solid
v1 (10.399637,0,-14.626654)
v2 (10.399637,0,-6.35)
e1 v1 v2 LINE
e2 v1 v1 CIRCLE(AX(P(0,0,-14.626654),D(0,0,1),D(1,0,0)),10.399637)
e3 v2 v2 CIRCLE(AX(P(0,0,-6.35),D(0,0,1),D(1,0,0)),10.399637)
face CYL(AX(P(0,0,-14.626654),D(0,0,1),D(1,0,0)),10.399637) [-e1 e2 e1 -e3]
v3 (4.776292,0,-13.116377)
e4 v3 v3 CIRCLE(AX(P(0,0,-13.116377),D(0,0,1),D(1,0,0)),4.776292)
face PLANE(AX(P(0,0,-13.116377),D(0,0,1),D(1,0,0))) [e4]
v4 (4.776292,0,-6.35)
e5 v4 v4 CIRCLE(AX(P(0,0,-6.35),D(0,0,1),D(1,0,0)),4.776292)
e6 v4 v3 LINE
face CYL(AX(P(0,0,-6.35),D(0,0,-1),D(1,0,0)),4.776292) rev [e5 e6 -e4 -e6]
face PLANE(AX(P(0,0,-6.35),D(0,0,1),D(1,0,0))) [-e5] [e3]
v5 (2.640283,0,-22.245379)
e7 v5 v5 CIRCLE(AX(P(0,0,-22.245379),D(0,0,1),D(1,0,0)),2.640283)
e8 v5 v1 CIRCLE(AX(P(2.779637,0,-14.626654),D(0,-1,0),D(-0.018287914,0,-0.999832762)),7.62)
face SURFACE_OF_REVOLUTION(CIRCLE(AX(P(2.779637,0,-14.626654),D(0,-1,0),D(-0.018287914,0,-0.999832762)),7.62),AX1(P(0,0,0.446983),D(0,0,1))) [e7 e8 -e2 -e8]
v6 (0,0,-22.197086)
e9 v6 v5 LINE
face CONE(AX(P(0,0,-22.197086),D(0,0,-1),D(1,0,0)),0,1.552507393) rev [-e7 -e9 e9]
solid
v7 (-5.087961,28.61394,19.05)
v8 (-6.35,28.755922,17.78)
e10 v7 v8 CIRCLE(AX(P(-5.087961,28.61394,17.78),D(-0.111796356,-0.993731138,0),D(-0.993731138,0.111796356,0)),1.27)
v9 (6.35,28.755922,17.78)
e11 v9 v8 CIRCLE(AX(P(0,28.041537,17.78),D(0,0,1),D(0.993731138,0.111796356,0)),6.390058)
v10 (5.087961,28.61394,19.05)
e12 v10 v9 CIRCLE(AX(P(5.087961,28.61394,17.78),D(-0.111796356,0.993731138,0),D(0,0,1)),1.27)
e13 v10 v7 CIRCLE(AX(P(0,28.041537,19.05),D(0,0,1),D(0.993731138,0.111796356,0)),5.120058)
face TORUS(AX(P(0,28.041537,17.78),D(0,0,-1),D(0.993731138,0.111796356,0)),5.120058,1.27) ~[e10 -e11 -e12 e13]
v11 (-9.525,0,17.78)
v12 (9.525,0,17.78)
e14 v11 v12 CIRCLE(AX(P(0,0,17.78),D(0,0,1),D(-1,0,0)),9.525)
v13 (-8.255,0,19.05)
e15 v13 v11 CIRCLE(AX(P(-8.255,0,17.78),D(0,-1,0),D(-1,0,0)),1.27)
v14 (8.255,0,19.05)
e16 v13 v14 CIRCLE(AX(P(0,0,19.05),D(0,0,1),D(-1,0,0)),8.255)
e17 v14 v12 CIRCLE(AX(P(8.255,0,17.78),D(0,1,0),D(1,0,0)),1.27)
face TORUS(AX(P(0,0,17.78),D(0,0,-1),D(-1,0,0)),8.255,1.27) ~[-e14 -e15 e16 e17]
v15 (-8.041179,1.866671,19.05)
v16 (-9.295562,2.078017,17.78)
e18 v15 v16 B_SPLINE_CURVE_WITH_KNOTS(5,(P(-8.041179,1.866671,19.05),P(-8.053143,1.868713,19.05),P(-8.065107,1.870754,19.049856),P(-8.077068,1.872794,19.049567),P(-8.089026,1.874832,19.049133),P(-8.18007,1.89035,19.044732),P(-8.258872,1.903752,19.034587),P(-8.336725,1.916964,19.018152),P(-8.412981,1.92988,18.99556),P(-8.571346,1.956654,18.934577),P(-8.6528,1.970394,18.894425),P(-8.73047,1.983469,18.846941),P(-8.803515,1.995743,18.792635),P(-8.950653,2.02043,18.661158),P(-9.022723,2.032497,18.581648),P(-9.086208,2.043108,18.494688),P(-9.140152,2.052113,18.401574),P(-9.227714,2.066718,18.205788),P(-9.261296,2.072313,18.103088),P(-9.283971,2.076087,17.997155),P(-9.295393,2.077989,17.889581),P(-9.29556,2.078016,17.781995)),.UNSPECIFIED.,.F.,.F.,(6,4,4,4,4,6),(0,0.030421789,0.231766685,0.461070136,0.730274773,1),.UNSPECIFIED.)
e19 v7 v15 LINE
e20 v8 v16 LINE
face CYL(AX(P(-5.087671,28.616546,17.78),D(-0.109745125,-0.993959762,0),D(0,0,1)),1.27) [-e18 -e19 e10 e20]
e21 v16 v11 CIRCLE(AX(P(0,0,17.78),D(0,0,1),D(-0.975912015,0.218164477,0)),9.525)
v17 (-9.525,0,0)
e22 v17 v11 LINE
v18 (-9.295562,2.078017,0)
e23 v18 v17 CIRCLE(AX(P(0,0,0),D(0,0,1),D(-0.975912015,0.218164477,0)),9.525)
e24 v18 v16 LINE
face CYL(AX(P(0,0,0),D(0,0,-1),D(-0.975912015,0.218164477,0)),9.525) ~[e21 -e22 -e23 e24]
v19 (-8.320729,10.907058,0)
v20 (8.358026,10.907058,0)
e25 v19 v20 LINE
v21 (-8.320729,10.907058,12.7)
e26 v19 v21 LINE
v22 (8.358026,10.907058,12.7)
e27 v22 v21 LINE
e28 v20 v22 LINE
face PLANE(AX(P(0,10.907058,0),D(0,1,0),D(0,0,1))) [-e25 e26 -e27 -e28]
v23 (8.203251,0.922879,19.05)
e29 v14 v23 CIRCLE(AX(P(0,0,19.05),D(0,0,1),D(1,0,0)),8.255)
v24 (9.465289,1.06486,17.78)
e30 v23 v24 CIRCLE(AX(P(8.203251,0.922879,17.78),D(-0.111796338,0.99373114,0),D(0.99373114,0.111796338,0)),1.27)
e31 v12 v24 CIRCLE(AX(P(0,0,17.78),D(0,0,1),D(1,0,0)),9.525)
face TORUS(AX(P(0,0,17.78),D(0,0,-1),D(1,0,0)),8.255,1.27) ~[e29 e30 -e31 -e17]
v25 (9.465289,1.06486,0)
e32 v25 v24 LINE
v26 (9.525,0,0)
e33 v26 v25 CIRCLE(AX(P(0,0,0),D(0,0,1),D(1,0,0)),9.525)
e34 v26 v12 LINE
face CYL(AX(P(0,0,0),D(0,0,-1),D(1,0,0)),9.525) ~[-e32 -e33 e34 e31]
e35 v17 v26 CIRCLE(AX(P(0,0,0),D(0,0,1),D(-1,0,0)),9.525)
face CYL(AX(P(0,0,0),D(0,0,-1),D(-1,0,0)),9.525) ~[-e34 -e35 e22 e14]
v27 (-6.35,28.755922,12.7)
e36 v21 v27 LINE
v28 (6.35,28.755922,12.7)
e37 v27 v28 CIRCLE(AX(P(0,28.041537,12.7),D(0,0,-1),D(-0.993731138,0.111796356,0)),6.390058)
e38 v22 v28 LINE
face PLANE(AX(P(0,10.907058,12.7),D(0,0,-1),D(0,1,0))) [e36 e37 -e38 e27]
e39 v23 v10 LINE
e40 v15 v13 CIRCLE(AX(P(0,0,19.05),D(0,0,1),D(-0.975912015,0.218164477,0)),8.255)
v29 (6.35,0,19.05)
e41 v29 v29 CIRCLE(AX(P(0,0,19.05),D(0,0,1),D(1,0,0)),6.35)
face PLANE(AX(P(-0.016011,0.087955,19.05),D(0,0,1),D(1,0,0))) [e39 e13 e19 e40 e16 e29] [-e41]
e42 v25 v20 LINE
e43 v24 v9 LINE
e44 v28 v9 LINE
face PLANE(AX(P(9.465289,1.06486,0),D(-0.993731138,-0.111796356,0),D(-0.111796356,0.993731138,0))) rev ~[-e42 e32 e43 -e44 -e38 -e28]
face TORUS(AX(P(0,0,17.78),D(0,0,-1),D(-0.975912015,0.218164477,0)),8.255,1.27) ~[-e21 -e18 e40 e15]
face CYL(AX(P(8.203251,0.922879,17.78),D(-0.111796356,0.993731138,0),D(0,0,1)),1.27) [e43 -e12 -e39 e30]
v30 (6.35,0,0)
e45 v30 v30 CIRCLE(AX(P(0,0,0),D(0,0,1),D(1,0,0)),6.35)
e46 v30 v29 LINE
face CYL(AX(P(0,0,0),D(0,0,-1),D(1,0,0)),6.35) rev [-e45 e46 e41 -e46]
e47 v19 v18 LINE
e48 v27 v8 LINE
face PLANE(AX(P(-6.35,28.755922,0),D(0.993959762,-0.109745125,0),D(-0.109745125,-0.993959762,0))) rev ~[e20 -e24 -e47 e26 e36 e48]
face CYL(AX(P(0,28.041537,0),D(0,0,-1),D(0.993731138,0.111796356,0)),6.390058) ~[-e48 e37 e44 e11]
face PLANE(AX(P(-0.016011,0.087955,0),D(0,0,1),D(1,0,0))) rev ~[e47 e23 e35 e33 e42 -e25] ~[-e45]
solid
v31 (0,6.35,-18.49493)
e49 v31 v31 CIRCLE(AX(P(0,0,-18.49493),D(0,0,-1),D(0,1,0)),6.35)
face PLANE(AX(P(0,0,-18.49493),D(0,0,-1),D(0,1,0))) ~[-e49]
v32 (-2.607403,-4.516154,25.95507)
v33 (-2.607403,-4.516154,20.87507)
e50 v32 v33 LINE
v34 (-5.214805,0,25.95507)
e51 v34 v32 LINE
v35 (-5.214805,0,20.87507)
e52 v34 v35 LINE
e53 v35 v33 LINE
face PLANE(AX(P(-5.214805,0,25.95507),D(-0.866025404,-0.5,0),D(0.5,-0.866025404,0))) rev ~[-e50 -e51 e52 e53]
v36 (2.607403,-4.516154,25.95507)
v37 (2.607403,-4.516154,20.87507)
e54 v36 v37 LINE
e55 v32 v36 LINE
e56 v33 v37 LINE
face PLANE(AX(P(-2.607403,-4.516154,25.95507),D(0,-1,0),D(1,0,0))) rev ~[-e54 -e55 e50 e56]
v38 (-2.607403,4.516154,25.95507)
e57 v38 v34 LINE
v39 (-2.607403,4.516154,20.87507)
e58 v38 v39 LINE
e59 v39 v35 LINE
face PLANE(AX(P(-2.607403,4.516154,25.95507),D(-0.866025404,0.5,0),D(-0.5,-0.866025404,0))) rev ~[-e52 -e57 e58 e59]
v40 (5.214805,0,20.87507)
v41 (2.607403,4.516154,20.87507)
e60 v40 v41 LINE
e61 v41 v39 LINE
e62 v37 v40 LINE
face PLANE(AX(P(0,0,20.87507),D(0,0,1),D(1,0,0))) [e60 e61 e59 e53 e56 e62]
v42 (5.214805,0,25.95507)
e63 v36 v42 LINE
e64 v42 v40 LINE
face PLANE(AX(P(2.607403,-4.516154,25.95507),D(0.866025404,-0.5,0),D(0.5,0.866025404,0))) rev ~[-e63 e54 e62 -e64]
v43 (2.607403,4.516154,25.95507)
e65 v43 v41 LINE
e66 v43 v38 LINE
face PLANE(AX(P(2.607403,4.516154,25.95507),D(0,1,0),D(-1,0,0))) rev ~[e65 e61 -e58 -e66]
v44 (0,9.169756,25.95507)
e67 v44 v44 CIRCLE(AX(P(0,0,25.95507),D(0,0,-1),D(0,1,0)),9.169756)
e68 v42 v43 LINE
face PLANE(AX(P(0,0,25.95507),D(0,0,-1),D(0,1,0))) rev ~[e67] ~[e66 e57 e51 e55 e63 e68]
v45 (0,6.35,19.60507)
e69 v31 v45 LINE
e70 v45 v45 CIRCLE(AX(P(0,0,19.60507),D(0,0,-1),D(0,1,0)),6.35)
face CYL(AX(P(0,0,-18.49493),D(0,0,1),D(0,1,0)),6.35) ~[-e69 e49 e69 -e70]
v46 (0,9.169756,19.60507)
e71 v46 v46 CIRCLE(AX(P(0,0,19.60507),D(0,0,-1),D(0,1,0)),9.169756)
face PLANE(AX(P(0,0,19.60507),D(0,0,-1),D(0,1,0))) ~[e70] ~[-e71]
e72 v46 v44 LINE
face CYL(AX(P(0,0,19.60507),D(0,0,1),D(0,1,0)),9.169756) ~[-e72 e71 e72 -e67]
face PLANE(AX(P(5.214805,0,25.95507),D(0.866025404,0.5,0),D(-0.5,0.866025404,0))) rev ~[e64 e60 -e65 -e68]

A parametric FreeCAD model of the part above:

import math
import FreeCAD as App
import Part
import Sketcher

V = App.Vector
Q = App.Units.Quantity


def edges_at(feature, points):
    """Names of the edges that pass closest to the given points."""
    edges = feature.Shape.Edges
    near = lambda p: min(range(len(edges)), key=lambda i: edges[i].distToShape(Part.Vertex(*p))[0])
    return sorted({f"Edge{near(p) + 1}" for p in points})

doc = App.newDocument("Part")
params = doc.addObject("Spreadsheet::Sheet", "Params")
for row, (alias, value) in enumerate([
    ("sketch1_diameter", "0.5 in"),
    ("sketch1_radius", "0.375 in"),
    ("pad1_length", "0.75 in"),
    ("sketch2_height", "0.5 in"),
    ("fillet_radius", "0.05 in"),
    ("sketch3_height", "1.5 in"),
    ("sketch3_width", "0.25 in"),
    ("revolution_angle", "360 deg"),
    ("pocket2_length", "0.2 in"),
    ("sketch5_radius", "0.3 in"),
    ("revolution2_angle", "360 deg"),
], start=1):
    params.set(f"A{row}", alias)
    params.set(f"B{row}", "=" + value)
    params.setAlias(f"B{row}", alias)

body = doc.addObject("PartDesign::Body", "Body")

# Sketch on XY plane
sketch1 = body.newObject("Sketcher::SketchObject", "Sketch")
sketch1.AttachmentSupport = (doc.getObject("XY_Plane"), [""])
sketch1.MapMode = "FlatFace"
sketch1.addGeometry([
    Part.ArcOfCircle(Part.Circle(V(0, 0, 0), V(0, 0, 1), 9.5), math.radians(167.4), math.radians(180)),  # 0
    Part.ArcOfCircle(Part.Circle(V(0, 0, 0), V(0, 0, 1), 9.5), math.radians(180), math.radians(360)),  # 1
    Part.ArcOfCircle(Part.Circle(V(0, 0, 0), V(0, 0, 1), 9.5), math.radians(0), math.radians(6.42)),  # 2
    Part.LineSegment(V(9.5, 1.1, 0), V(6.3, 28.8, 0)),  # 3
    Part.ArcOfCircle(Part.Circle(V(0, 28, 0), V(0, 0, 1), 6.4), math.radians(6), math.radians(174)),  # 4
    Part.LineSegment(V(-6.3, 28.8, 0), V(-9.3, 2.1, 0)),  # 5
    Part.Circle(V(0, 0, 0), V(0, 0, 1), 6.3),  # 6
], False)
sketch1.addConstraint([
    Sketcher.Constraint("Tangent", 0, 2, 1, 1),
    Sketcher.Constraint("Tangent", 1, 2, 2, 1),
    Sketcher.Constraint("Tangent", 2, 2, 3, 1),
    Sketcher.Constraint("Tangent", 3, 2, 4, 1),
    Sketcher.Constraint("Coincident", 4, 2, 5, 1),
    Sketcher.Constraint("Coincident", 5, 2, 0, 1),
    Sketcher.Constraint("Coincident", 0, 3, -1, 1),
    Sketcher.Constraint("Coincident", 6, 3, -1, 1),
    Sketcher.Constraint("Equal", 0, 1),
    Sketcher.Constraint("Equal", 1, 2),
    Sketcher.Constraint("Symmetric", 3, 2, 4, 2, -2),
    Sketcher.Constraint("PointOnObject", 0, 2, -1),
    Sketcher.Constraint("PointOnObject", 1, 2, -1),
    Sketcher.Constraint("Diameter", 6, Q("0.5 in")),
    Sketcher.Constraint("Radius", 0, Q("0.375 in")),
    Sketcher.Constraint("DistanceX", 4, 2, 3, 2, Q("0.5 in")),
    Sketcher.Constraint("Distance", 3, Q("27.865748 mm")),
    Sketcher.Constraint("DistanceX", 5, 2, -1, 1, Q("9.295562 mm")),
])
sketch1.setExpression("Constraints[13]", "Params.sketch1_diameter")
sketch1.setExpression("Constraints[14]", "Params.sketch1_radius")
pad1 = body.newObject("PartDesign::Pad", "Pad")
pad1.Profile = sketch1
pad1.setExpression("Length", "Params.pad1_length")

# Sketch on YZ plane
sketch2 = body.newObject("Sketcher::SketchObject", "Sketch001")
sketch2.AttachmentSupport = (doc.getObject("YZ_Plane"), [""])
sketch2.MapMode = "FlatFace"
sketch2.addGeometry([
    Part.LineSegment(V(11, 13, 0), V(11, 0, 0)),
    Part.LineSegment(V(11, 0, 0), V(44, 0, 0)),
    Part.LineSegment(V(44, 0, 0), V(44, 13, 0)),
    Part.LineSegment(V(44, 13, 0), V(11, 13, 0)),
], False)
sketch2.addConstraint([
    Sketcher.Constraint("Coincident", 0, 2, 1, 1),
    Sketcher.Constraint("Coincident", 1, 2, 2, 1),
    Sketcher.Constraint("Coincident", 2, 2, 3, 1),
    Sketcher.Constraint("Coincident", 3, 2, 0, 1),
    Sketcher.Constraint("Vertical", 0),
    Sketcher.Constraint("Horizontal", 1),
    Sketcher.Constraint("Vertical", 2),
    Sketcher.Constraint("Horizontal", 3),
    Sketcher.Constraint("PointOnObject", 0, 2, -1),
    Sketcher.Constraint("DistanceY", 0, 2, 0, 1, Q("0.5 in")),
    Sketcher.Constraint("DistanceX", 1, 1, 1, 2, Q("33.468234 mm")),
    Sketcher.Constraint("DistanceX", -1, 1, 0, 2, Q("10.907058 mm")),
])
sketch2.setExpression("Constraints[9]", "Params.sketch2_height")
pocket1 = body.newObject("PartDesign::Pocket", "Pocket")
pocket1.Profile = sketch2
pocket1.Type = "ThroughAll"
pocket1.Midplane = True
doc.recompute()

fillet = body.newObject("PartDesign::Fillet", "Fillet")
fillet.Base = (pocket1, edges_at(pocket1, [
    (7.908, 14.91, 19.05),
    (0, 34.432, 19.05),
    (-7.823, 15.417, 19.05),
    (0, -9.525, 19.05),
]))
fillet.setExpression("Radius", "Params.fillet_radius")
body2 = doc.addObject("PartDesign::Body", "Body001")

# Sketch on YZ plane
sketch3 = body2.newObject("Sketcher::SketchObject", "Sketch002")
sketch3.AttachmentSupport = (doc.getObject("YZ_Plane001"), [""])
sketch3.MapMode = "FlatFace"
sketch3.addGeometry([
    Part.LineSegment(V(0, 26, 0), V(0, -18.5, 0)),  # 0
    Part.LineSegment(V(0, -18.5, 0), V(6.3, -18.5, 0)),  # 1
    Part.LineSegment(V(6.3, -18.5, 0), V(6.3, 19.6, 0)),  # 2
    Part.LineSegment(V(6.3, 19.6, 0), V(9.2, 19.6, 0)),  # 3
    Part.LineSegment(V(9.2, 19.6, 0), V(9.2, 26, 0)),  # 4
    Part.LineSegment(V(9.2, 26, 0), V(0, 26, 0)),  # 5
], False)
sketch3.addConstraint([
    Sketcher.Constraint("Coincident", 0, 2, 1, 1),
    Sketcher.Constraint("Coincident", 1, 2, 2, 1),
    Sketcher.Constraint("Coincident", 2, 2, 3, 1),
    Sketcher.Constraint("Coincident", 3, 2, 4, 1),
    Sketcher.Constraint("Coincident", 4, 2, 5, 1),
    Sketcher.Constraint("Coincident", 5, 2, 0, 1),
    Sketcher.Constraint("Vertical", 0),
    Sketcher.Constraint("Horizontal", 1),
    Sketcher.Constraint("Vertical", 2),
    Sketcher.Constraint("Horizontal", 3),
    Sketcher.Constraint("Vertical", 4),
    Sketcher.Constraint("Horizontal", 5),
    Sketcher.Constraint("PointOnObject", 0, 2, -2),
    Sketcher.Constraint("Equal", 1, 4),
    Sketcher.Constraint("DistanceY", 2, 1, 2, 2, Q("1.5 in")),
    Sketcher.Constraint("DistanceX", 1, 1, 1, 2, Q("0.25 in")),
    Sketcher.Constraint("DistanceX", 3, 1, 3, 2, Q("2.819756 mm")),
    Sketcher.Constraint("DistanceY", 0, 2, -1, 1, Q("18.49493 mm")),
])
sketch3.setExpression("Constraints[14]", "Params.sketch3_height")
sketch3.setExpression("Constraints[15]", "Params.sketch3_width")
revolution = body2.newObject("PartDesign::Revolution", "Revolution")
revolution.Profile = sketch3
revolution.ReferenceAxis = (sketch3, ["V_Axis"])
revolution.setExpression("Angle", "Params.revolution_angle")

# Sketch on XY plane
sketch4 = body2.newObject("Sketcher::SketchObject", "Sketch003")
sketch4.AttachmentSupport = (doc.getObject("XY_Plane001"), [""])
sketch4.MapMode = "FlatFace"
sketch4.AttachmentOffset = App.Placement(V(0, 0, 25.95507), App.Rotation())
sketch4.addGeometry([
    Part.LineSegment(V(3, -5, 0), V(5, 0, 0)),  # 0
    Part.LineSegment(V(5, 0, 0), V(3, 5, 0)),  # 1
    Part.LineSegment(V(3, 5, 0), V(-3, 5, 0)),  # 2
    Part.LineSegment(V(-3, 5, 0), V(-5, 0, 0)),  # 3
    Part.LineSegment(V(-5, 0, 0), V(-3, -5, 0)),  # 4
    Part.LineSegment(V(-3, -5, 0), V(3, -5, 0)),  # 5
], False)
sketch4.addConstraint([
    Sketcher.Constraint("Coincident", 0, 2, 1, 1),
    Sketcher.Constraint("Coincident", 1, 2, 2, 1),
    Sketcher.Constraint("Coincident", 2, 2, 3, 1),
    Sketcher.Constraint("Coincident", 3, 2, 4, 1),
    Sketcher.Constraint("Coincident", 4, 2, 5, 1),
    Sketcher.Constraint("Coincident", 5, 2, 0, 1),
    Sketcher.Constraint("Horizontal", 2),
    Sketcher.Constraint("Horizontal", 5),
    Sketcher.Constraint("Symmetric", 0, 2, 3, 2, -1, 1),
    Sketcher.Constraint("Symmetric", 1, 2, 4, 2, -1, 1),
    Sketcher.Constraint("PointOnObject", 0, 2, -1),
    Sketcher.Constraint("Parallel", 0, 3),
    Sketcher.Constraint("Vertical", 2, 2, 4, 2),
    Sketcher.Constraint("Angle", 0, Q("60 deg")),
    Sketcher.Constraint("DistanceX", 2, 2, 2, 1, Q("5.214805 mm")),
    Sketcher.Constraint("DistanceX", 3, 2, 0, 2, Q("10.42961 mm")),
])
pocket2 = body2.newObject("PartDesign::Pocket", "Pocket001")
pocket2.Profile = sketch4
pocket2.setExpression("Length", "Params.pocket2_length")
body3 = doc.addObject("PartDesign::Body", "Body002")

# Sketch on XZ plane
sketch5 = body3.newObject("Sketcher::SketchObject", "Sketch004")
sketch5.AttachmentSupport = (doc.getObject("XZ_Plane002"), [""])
sketch5.MapMode = "FlatFace"
sketch5.addGeometry([
    Part.ArcOfCircle(Part.Circle(V(2.8, -14.6, 0), V(0, 0, 1), 7.6), math.radians(-91), math.radians(0)),  # 0
    Part.LineSegment(V(10.4, -14.6, 0), V(10.4, -6.3, 0)),  # 1
    Part.LineSegment(V(10.4, -6.3, 0), V(4.8, -6.3, 0)),  # 2
    Part.LineSegment(V(4.8, -6.3, 0), V(4.8, -13.1, 0)),  # 3
    Part.LineSegment(V(4.8, -13.1, 0), V(0, -13.1, 0)),  # 4
    Part.LineSegment(V(0, -13.1, 0), V(0, -22.2, 0)),  # 5
    Part.LineSegment(V(0, -22.2, 0), V(2.6, -22.2, 0)),  # 6
], False)
sketch5.addConstraint([
    Sketcher.Constraint("Tangent", 0, 2, 1, 1),
    Sketcher.Constraint("Coincident", 1, 2, 2, 1),
    Sketcher.Constraint("Coincident", 2, 2, 3, 1),
    Sketcher.Constraint("Coincident", 3, 2, 4, 1),
    Sketcher.Constraint("Coincident", 4, 2, 5, 1),
    Sketcher.Constraint("Coincident", 5, 2, 6, 1),
    Sketcher.Constraint("Tangent", 6, 2, 0, 1),
    Sketcher.Constraint("Vertical", 1),
    Sketcher.Constraint("Horizontal", 2),
    Sketcher.Constraint("Vertical", 3),
    Sketcher.Constraint("Horizontal", 4),
    Sketcher.Constraint("Vertical", 5),
    Sketcher.Constraint("PointOnObject", 4, 2, -2),
    Sketcher.Constraint("Radius", 0, Q("0.3 in")),
    Sketcher.Constraint("DistanceY", 1, 2, -1, 1, Q("0.25 in")),
    Sketcher.Constraint("DistanceY", 5, 2, 5, 1, Q("9.080709 mm")),
    Sketcher.Constraint("DistanceX", 2, 2, 2, 1, Q("5.623345 mm")),
    Sketcher.Constraint("DistanceX", 4, 2, 4, 1, Q("4.776292 mm")),
    Sketcher.Constraint("DistanceY", 1, 1, 1, 2, Q("8.276654 mm")),
    Sketcher.Constraint("DistanceY", 3, 2, 3, 1, Q("6.766377 mm")),
])
sketch5.setExpression("Constraints[13]", "Params.sketch5_radius")
revolution2 = body3.newObject("PartDesign::Revolution", "Revolution001")
revolution2.Profile = sketch5
revolution2.ReferenceAxis = (sketch5, ["V_Axis"])
revolution2.setExpression("Angle", "Params.revolution2_angle")

doc.recompute()
